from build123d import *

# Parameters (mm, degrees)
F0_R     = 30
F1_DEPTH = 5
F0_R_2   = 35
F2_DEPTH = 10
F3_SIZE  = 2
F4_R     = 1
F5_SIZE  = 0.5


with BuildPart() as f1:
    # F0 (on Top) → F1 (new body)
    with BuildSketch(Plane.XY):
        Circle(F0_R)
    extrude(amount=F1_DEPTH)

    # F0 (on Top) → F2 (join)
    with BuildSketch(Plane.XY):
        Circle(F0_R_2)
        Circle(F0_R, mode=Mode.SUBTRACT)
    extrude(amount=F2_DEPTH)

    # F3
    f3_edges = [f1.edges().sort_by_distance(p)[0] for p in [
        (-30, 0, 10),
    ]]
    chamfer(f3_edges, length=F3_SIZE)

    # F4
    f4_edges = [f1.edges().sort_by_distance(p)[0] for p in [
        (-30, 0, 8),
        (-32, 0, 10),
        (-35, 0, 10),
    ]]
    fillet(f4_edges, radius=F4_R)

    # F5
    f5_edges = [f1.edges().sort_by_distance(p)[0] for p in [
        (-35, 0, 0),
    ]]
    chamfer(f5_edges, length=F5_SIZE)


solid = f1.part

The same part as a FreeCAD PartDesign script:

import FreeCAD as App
import Part
import Sketcher

V = App.Vector
Q = App.Units.Quantity


def edges_at(feature, points):
    """Names of the edges that pass closest to the given points."""
    edges = feature.Shape.Edges
    near = lambda p: min(range(len(edges)), key=lambda i: edges[i].distToShape(Part.Vertex(*p))[0])
    return sorted({f"Edge{near(p) + 1}" for p in points})

doc = App.newDocument("Part")
params = doc.addObject("Spreadsheet::Sheet", "Params")
for row, (alias, value) in enumerate([
    ("sketch1_diameter", "60 mm"),
    ("pad1_length", "5 mm"),
    ("sketch2_diameter", "70 mm"),
    ("sketch2_diameter2", "60 mm"),
    ("pad2_length", "10 mm"),
    ("chamfer_size", "2 mm"),
    ("fillet_radius", "1 mm"),
    ("chamfer2_size", "0.5 mm"),
], start=1):
    params.set(f"A{row}", alias)
    params.set(f"B{row}", "=" + value)
    params.setAlias(f"B{row}", alias)

body = doc.addObject("PartDesign::Body", "Body")

# Sketch on XY plane
sketch1 = body.newObject("Sketcher::SketchObject", "Sketch")
sketch1.AttachmentSupport = (doc.getObject("XY_Plane"), [""])
sketch1.MapMode = "FlatFace"
sketch1.addGeometry(Part.Circle(V(0, 0, 0), V(0, 0, 1), 30), False)
sketch1.addConstraint([
    Sketcher.Constraint("Coincident", 0, 3, -1, 1),
    Sketcher.Constraint("Diameter", 0, Q("60 mm")),
])
sketch1.setExpression("Constraints[1]", "Params.sketch1_diameter")
pad1 = body.newObject("PartDesign::Pad", "Pad")
pad1.Profile = sketch1
pad1.setExpression("Length", "Params.pad1_length")

# Sketch on XY plane
sketch2 = body.newObject("Sketcher::SketchObject", "Sketch001")
sketch2.AttachmentSupport = (doc.getObject("XY_Plane"), [""])
sketch2.MapMode = "FlatFace"
sketch2.addGeometry([
    Part.Circle(V(0, 0, 0), V(0, 0, 1), 35),
    Part.Circle(V(0, 0, 0), V(0, 0, 1), 30),
], False)
sketch2.addConstraint([
    Sketcher.Constraint("Coincident", 0, 3, -1, 1),
    Sketcher.Constraint("Coincident", 1, 3, -1, 1),
    Sketcher.Constraint("Diameter", 0, Q("70 mm")),
    Sketcher.Constraint("Diameter", 1, Q("60 mm")),
])
sketch2.setExpression("Constraints[2]", "Params.sketch2_diameter")
sketch2.setExpression("Constraints[3]", "Params.sketch2_diameter2")
pad2 = body.newObject("PartDesign::Pad", "Pad001")
pad2.Profile = sketch2
pad2.setExpression("Length", "Params.pad2_length")
doc.recompute()

chamfer = body.newObject("PartDesign::Chamfer", "Chamfer")
chamfer.Base = (pad2, edges_at(pad2, [(-30, 0, 10)]))
chamfer.setExpression("Size", "Params.chamfer_size")
doc.recompute()

fillet = body.newObject("PartDesign::Fillet", "Fillet")
fillet.Base = (chamfer, edges_at(chamfer, [(-30, 0, 8), (-32, 0, 10), (-35, 0, 10)]))
fillet.setExpression("Radius", "Params.fillet_radius")
doc.recompute()

chamfer2 = body.newObject("PartDesign::Chamfer", "Chamfer001")
chamfer2.Base = (fillet, edges_at(fillet, [(-35, 0, 0)]))
chamfer2.setExpression("Size", "Params.chamfer2_size")

doc.recompute()
